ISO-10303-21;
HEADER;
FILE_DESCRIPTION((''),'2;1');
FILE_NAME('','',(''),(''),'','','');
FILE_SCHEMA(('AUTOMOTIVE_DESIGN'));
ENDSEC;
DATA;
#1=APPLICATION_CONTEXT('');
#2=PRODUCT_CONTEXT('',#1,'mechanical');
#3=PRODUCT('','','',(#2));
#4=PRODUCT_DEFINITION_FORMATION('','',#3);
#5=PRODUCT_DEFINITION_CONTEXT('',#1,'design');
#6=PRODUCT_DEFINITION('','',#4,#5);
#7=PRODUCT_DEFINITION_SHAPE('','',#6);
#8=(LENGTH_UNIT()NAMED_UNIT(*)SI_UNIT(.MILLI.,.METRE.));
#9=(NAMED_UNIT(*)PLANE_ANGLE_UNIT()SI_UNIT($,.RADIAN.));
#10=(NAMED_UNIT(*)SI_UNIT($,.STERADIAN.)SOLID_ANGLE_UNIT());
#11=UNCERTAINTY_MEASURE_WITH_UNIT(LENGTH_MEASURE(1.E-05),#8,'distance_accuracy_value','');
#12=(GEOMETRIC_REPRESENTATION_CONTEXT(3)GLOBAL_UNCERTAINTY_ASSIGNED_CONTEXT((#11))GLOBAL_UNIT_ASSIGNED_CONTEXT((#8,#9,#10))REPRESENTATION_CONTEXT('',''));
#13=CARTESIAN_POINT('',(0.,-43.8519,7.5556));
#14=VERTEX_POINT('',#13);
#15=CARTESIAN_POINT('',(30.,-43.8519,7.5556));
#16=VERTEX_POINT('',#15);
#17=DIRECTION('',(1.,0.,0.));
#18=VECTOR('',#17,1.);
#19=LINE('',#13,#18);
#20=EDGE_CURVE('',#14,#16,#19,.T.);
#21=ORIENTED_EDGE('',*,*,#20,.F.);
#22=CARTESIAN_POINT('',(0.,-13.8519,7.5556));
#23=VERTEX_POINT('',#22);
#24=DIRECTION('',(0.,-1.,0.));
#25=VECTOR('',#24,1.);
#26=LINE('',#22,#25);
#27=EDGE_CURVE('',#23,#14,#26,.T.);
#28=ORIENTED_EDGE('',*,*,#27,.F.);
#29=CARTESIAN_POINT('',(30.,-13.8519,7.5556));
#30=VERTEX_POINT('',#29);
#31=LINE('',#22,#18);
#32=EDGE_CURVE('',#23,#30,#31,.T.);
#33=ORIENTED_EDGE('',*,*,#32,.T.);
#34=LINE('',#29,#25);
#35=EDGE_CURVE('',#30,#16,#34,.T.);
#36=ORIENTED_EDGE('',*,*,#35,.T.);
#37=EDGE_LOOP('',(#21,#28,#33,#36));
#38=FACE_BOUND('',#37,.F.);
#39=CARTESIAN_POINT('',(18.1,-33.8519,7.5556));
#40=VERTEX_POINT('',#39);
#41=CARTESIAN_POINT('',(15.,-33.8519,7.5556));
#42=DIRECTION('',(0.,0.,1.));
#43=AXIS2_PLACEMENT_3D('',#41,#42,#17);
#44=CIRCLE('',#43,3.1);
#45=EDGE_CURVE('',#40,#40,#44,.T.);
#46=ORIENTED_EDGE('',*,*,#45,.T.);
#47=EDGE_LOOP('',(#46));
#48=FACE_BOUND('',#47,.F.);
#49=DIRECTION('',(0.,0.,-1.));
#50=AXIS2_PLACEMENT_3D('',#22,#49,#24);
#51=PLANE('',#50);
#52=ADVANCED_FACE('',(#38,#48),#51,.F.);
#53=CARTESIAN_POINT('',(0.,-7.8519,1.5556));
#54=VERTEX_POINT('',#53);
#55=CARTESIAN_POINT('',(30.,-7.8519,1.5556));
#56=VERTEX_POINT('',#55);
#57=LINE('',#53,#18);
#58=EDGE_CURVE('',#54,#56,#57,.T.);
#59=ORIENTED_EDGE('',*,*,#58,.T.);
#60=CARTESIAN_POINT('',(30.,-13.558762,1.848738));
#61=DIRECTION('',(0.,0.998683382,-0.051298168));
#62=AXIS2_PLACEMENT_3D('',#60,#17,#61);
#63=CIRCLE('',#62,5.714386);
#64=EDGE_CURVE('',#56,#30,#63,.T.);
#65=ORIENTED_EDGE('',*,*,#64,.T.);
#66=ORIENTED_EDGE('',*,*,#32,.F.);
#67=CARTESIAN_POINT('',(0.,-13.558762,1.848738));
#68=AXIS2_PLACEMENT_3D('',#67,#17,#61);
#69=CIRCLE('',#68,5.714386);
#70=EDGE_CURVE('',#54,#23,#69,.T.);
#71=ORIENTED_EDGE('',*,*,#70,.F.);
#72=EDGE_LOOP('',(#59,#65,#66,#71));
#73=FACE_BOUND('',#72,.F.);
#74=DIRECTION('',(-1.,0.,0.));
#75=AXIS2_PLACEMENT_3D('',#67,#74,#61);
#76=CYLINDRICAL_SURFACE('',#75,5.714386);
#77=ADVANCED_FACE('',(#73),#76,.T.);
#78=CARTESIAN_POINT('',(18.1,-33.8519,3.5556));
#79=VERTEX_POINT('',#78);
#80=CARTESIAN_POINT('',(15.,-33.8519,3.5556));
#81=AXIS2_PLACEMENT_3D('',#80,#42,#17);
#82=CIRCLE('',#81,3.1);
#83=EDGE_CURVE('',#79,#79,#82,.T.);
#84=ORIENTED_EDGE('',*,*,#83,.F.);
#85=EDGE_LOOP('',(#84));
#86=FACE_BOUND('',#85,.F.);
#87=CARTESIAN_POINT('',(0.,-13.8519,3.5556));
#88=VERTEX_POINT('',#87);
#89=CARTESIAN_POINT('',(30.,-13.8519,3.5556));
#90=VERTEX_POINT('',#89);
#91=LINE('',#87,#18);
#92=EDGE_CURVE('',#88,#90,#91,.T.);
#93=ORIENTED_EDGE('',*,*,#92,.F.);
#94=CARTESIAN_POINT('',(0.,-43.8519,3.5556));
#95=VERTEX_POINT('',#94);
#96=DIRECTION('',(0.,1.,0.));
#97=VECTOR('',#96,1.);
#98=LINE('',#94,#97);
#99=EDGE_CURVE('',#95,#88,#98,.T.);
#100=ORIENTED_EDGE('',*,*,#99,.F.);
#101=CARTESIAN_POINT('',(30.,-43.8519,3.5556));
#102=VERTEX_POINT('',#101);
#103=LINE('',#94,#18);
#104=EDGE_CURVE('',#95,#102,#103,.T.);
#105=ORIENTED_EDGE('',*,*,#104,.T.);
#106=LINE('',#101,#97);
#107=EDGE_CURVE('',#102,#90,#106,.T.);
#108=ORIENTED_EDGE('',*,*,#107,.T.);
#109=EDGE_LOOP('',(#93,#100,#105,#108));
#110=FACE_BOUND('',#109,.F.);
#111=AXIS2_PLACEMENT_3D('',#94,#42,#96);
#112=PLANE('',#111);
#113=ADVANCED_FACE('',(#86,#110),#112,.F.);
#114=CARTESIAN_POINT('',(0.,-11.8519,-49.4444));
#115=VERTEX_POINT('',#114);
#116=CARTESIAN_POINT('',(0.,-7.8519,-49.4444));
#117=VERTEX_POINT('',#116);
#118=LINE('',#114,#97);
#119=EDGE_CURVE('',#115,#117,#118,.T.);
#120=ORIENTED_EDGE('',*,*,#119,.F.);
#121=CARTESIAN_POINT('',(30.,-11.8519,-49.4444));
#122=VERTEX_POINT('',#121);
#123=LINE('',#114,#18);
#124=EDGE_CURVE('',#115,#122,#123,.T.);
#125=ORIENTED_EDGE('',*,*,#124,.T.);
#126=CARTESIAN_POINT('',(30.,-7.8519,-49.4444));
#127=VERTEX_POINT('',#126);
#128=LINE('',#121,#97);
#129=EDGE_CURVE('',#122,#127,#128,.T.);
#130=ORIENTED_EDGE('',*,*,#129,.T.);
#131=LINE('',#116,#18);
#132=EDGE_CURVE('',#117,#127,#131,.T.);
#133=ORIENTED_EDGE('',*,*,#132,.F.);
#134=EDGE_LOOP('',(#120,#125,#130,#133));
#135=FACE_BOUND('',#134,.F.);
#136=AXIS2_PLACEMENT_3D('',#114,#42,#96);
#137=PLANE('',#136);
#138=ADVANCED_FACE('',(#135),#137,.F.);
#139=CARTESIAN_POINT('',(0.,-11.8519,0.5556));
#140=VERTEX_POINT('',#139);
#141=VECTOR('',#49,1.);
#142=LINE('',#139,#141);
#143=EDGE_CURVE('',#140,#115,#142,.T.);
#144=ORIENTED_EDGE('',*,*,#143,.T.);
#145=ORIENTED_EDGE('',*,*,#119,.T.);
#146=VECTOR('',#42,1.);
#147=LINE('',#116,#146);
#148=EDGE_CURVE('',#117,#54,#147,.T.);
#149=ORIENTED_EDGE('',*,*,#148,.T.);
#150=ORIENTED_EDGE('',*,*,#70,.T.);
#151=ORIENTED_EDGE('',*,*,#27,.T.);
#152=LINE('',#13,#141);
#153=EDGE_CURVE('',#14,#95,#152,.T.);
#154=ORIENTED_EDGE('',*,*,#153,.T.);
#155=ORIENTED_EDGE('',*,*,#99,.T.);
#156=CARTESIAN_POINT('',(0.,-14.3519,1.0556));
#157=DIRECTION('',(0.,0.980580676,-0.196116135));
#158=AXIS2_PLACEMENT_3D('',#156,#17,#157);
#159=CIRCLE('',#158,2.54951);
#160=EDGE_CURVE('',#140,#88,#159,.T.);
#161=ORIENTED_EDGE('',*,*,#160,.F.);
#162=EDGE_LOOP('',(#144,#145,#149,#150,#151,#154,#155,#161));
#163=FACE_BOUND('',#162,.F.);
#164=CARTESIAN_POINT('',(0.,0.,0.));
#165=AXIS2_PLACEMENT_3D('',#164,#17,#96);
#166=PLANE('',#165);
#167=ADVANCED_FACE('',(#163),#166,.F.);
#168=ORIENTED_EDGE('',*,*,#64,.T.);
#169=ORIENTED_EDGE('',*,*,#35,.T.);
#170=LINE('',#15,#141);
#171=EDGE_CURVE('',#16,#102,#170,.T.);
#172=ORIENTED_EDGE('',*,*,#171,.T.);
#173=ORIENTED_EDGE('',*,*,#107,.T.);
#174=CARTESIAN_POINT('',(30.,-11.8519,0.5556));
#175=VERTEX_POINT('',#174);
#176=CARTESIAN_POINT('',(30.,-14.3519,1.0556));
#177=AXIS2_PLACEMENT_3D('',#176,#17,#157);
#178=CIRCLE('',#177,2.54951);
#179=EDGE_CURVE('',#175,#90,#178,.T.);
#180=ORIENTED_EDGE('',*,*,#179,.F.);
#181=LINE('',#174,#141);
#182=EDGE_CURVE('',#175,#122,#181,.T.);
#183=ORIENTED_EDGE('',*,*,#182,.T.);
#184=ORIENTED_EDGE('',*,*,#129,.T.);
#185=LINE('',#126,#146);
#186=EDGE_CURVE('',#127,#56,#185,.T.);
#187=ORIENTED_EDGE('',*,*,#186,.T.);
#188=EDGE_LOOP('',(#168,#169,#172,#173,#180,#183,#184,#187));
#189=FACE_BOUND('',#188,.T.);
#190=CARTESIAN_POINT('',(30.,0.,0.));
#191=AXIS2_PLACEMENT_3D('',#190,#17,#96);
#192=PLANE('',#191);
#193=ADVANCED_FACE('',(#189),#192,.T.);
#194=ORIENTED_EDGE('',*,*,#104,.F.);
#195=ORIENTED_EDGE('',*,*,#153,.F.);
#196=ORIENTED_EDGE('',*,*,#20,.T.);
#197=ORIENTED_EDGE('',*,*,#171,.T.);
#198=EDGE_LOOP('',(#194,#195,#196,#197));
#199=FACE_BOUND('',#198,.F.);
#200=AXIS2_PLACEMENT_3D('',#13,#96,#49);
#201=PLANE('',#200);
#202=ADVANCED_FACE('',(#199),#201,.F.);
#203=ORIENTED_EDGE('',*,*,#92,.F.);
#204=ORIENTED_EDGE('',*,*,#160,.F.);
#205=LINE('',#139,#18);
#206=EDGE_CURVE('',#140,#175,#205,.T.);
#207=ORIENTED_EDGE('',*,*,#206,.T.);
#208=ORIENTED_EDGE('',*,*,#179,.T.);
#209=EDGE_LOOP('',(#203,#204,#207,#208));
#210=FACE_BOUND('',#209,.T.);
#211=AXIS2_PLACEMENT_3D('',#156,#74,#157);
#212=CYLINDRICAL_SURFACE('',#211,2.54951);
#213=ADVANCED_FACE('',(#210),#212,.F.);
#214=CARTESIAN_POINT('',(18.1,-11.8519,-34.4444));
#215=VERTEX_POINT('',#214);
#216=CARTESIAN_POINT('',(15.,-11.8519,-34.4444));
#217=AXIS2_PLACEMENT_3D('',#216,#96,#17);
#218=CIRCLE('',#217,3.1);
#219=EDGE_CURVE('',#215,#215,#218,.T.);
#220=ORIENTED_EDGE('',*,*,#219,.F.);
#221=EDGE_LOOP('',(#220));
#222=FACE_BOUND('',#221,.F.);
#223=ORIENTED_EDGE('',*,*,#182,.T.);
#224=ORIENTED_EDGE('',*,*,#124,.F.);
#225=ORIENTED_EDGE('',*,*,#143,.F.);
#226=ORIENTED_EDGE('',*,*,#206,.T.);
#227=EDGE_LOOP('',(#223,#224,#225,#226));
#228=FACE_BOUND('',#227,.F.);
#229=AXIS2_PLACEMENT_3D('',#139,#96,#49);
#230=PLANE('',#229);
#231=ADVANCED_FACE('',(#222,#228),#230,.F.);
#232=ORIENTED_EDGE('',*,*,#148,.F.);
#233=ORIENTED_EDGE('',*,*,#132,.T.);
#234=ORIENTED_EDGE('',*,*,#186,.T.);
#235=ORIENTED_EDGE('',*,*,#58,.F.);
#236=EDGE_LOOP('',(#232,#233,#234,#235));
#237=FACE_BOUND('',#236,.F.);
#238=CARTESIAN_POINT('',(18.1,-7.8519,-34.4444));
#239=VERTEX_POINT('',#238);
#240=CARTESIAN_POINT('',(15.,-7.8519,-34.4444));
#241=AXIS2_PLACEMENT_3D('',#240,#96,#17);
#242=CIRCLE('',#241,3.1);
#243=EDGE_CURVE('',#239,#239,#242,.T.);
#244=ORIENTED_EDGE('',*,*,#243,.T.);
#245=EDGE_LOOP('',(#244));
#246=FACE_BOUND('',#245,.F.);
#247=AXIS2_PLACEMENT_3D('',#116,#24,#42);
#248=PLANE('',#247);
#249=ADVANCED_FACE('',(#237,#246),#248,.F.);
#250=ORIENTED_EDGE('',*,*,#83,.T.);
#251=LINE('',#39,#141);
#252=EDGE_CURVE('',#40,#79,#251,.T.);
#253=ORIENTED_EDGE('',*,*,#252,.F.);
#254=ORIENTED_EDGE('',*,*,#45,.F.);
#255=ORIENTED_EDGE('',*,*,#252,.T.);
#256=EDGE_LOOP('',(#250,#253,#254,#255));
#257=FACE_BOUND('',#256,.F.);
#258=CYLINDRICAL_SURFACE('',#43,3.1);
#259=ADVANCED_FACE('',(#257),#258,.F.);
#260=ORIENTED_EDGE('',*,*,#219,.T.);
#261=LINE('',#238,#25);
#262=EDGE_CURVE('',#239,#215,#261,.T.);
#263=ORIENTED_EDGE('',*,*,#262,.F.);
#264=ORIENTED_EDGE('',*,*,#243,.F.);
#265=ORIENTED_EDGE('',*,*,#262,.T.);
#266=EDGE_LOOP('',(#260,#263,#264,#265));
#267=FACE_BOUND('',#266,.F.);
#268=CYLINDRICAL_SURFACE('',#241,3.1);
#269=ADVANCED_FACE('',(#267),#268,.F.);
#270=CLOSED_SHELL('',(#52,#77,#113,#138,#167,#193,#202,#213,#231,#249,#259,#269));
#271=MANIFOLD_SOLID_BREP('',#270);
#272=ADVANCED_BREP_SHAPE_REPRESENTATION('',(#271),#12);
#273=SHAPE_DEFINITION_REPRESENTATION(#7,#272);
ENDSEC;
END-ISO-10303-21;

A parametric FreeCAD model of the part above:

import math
import FreeCAD as App
import Part
import Sketcher
from FreeCAD import Vector
Q = App.Units.Quantity

doc = App.newDocument("Part")
params = doc.addObject("Spreadsheet::Sheet", "Params")
for row, (alias, value) in enumerate([
    ("sketch1_width", "4 mm"),
    ("sketch1_width2", "30 mm"),
    ("sketch1_height", "50 mm"),
    ("sketch1_height2", "51 mm"),
    ("pad1_length", "30 mm"),
    ("sketch2_diameter", "6.2 mm"),
    ("pocket1_length", "30 mm"),
    ("sketch3_diameter", "6.2 mm"),
    ("pocket2_length", "30 mm"),
], start=1):
    params.set(f"A{row}", alias)
    params.set(f"B{row}", "=" + value)
    params.setAlias(f"B{row}", alias)

body = doc.addObject("PartDesign::Body", "Body")

sketch1 = body.newObject("Sketcher::SketchObject", "Sketch")
sketch1.AttachmentSupport = (doc.getObject("YZ_Plane"), [""])
sketch1.MapMode = "FlatFace"
sketch1.addGeometry([
    Part.ArcOfCircle(Part.Circle(Vector(-14.4, 1.1, 0), Vector(0, 0, 1), 2.5), math.radians(-11), math.radians(79)),
    Part.LineSegment(Vector(-11.9, 0.6, 0), Vector(-11.9, -49.4, 0)),
    Part.LineSegment(Vector(-11.9, -49.4, 0), Vector(-7.9, -49.4, 0)),
    Part.LineSegment(Vector(-7.9, -49.4, 0), Vector(-7.9, 1.6, 0)),
    Part.ArcOfCircle(Part.Circle(Vector(-13.6, 1.8, 0), Vector(0, 0, 1), 5.7), math.radians(-3), math.radians(93)),
    Part.LineSegment(Vector(-13.9, 7.6, 0), Vector(-43.9, 7.6, 0)),
    Part.LineSegment(Vector(-43.9, 7.6, 0), Vector(-43.9, 3.6, 0)),
    Part.LineSegment(Vector(-43.9, 3.6, 0), Vector(-13.9, 3.6, 0)),
], False)
sketch1.addConstraint([
    Sketcher.Constraint("Coincident", 0, 1, 1, 1),
    Sketcher.Constraint("Coincident", 1, 2, 2, 1),
    Sketcher.Constraint("Coincident", 2, 2, 3, 1),
    Sketcher.Constraint("Coincident", 3, 2, 4, 1),
    Sketcher.Constraint("Coincident", 4, 2, 5, 1),
    Sketcher.Constraint("Coincident", 5, 2, 6, 1),
    Sketcher.Constraint("Coincident", 6, 2, 7, 1),
    Sketcher.Constraint("Coincident", 7, 2, 0, 2),
    Sketcher.Constraint("Vertical", 1),
    Sketcher.Constraint("Horizontal", 2),
    Sketcher.Constraint("Vertical", 3),
    Sketcher.Constraint("Horizontal", 5),
    Sketcher.Constraint("Vertical", 6),
    Sketcher.Constraint("Horizontal", 7),
    Sketcher.Constraint("Vertical", 4, 2, 7, 2),
    Sketcher.Constraint("Equal", 2, 6),
    Sketcher.Constraint("DistanceX", 2, 1, 2, 2, Q("4 mm")),
    Sketcher.Constraint("DistanceX", 5, 2, 5, 1, Q("30 mm")),
    Sketcher.Constraint("DistanceY", 1, 2, 1, 1, Q("50 mm")),
    Sketcher.Constraint("DistanceY", 1, 2, 4, 2, Q("57 mm")),
    Sketcher.Constraint("DistanceY", 3, 1, 3, 2, Q("51 mm")),
    Sketcher.Constraint("DistanceX", 4, 2, 0, 1, Q("2 mm")),
    Sketcher.Constraint("Radius", 0, Q("2.5495 mm")),
    Sketcher.Constraint("Radius", 4, Q("5.7142 mm")),
    Sketcher.Constraint("DistanceX", 0, 3, -1, 1, Q("14.352 mm")),
    Sketcher.Constraint("DistanceY", -1, 1, 0, 3, Q("1.0556 mm")),
])
sketch1.setExpression("Constraints[16]", "Params.sketch1_width")
sketch1.setExpression("Constraints[17]", "Params.sketch1_width2")
sketch1.setExpression("Constraints[18]", "Params.sketch1_height")
sketch1.setExpression("Constraints[20]", "Params.sketch1_height2")
pad1 = body.newObject("PartDesign::Pad", "Pad")
pad1.Profile = sketch1
pad1.setExpression("Length", "Params.pad1_length")

sketch2 = body.newObject("Sketcher::SketchObject", "Sketch001")
sketch2.AttachmentSupport = (doc.getObject("XZ_Plane"), [""])
sketch2.MapMode = "FlatFace"
sketch2.AttachmentOffset = App.Placement(Vector(0, 0, 7.8519), App.Rotation())
sketch2.addGeometry(Part.Circle(Vector(15, -34.4, 0), Vector(0, 0, 1), 3.1), False)
sketch2.addConstraint([
    Sketcher.Constraint("Diameter", 0, Q("6.2 mm")),
    Sketcher.Constraint("DistanceX", -1, 1, 0, 3, Q("15 mm")),
    Sketcher.Constraint("DistanceY", 0, 3, -1, 1, Q("34.4444 mm")),
])
sketch2.setExpression("Constraints[0]", "Params.sketch2_diameter")
pocket1 = body.newObject("PartDesign::Pocket", "Pocket")
pocket1.Profile = sketch2
pocket1.setExpression("Length", "Params.pocket1_length")
pocket1.Reversed = True

sketch3 = body.newObject("Sketcher::SketchObject", "Sketch002")
sketch3.AttachmentSupport = (doc.getObject("XY_Plane"), [""])
sketch3.MapMode = "FlatFace"
sketch3.AttachmentOffset = App.Placement(Vector(0, 0, 7.5556), App.Rotation())
sketch3.addGeometry(Part.Circle(Vector(15, -33.9, 0), Vector(0, 0, 1), 3.1), False)
sketch3.addConstraint([
    Sketcher.Constraint("Diameter", 0, Q("6.2 mm")),
    Sketcher.Constraint("DistanceX", -1, 1, 0, 3, Q("15 mm")),
    Sketcher.Constraint("DistanceY", 0, 3, -1, 1, Q("33.852 mm")),
])
sketch3.setExpression("Constraints[0]", "Params.sketch3_diameter")
pocket2 = body.newObject("PartDesign::Pocket", "Pocket001")
pocket2.Profile = sketch3
pocket2.setExpression("Length", "Params.pocket2_length")

doc.recompute()
